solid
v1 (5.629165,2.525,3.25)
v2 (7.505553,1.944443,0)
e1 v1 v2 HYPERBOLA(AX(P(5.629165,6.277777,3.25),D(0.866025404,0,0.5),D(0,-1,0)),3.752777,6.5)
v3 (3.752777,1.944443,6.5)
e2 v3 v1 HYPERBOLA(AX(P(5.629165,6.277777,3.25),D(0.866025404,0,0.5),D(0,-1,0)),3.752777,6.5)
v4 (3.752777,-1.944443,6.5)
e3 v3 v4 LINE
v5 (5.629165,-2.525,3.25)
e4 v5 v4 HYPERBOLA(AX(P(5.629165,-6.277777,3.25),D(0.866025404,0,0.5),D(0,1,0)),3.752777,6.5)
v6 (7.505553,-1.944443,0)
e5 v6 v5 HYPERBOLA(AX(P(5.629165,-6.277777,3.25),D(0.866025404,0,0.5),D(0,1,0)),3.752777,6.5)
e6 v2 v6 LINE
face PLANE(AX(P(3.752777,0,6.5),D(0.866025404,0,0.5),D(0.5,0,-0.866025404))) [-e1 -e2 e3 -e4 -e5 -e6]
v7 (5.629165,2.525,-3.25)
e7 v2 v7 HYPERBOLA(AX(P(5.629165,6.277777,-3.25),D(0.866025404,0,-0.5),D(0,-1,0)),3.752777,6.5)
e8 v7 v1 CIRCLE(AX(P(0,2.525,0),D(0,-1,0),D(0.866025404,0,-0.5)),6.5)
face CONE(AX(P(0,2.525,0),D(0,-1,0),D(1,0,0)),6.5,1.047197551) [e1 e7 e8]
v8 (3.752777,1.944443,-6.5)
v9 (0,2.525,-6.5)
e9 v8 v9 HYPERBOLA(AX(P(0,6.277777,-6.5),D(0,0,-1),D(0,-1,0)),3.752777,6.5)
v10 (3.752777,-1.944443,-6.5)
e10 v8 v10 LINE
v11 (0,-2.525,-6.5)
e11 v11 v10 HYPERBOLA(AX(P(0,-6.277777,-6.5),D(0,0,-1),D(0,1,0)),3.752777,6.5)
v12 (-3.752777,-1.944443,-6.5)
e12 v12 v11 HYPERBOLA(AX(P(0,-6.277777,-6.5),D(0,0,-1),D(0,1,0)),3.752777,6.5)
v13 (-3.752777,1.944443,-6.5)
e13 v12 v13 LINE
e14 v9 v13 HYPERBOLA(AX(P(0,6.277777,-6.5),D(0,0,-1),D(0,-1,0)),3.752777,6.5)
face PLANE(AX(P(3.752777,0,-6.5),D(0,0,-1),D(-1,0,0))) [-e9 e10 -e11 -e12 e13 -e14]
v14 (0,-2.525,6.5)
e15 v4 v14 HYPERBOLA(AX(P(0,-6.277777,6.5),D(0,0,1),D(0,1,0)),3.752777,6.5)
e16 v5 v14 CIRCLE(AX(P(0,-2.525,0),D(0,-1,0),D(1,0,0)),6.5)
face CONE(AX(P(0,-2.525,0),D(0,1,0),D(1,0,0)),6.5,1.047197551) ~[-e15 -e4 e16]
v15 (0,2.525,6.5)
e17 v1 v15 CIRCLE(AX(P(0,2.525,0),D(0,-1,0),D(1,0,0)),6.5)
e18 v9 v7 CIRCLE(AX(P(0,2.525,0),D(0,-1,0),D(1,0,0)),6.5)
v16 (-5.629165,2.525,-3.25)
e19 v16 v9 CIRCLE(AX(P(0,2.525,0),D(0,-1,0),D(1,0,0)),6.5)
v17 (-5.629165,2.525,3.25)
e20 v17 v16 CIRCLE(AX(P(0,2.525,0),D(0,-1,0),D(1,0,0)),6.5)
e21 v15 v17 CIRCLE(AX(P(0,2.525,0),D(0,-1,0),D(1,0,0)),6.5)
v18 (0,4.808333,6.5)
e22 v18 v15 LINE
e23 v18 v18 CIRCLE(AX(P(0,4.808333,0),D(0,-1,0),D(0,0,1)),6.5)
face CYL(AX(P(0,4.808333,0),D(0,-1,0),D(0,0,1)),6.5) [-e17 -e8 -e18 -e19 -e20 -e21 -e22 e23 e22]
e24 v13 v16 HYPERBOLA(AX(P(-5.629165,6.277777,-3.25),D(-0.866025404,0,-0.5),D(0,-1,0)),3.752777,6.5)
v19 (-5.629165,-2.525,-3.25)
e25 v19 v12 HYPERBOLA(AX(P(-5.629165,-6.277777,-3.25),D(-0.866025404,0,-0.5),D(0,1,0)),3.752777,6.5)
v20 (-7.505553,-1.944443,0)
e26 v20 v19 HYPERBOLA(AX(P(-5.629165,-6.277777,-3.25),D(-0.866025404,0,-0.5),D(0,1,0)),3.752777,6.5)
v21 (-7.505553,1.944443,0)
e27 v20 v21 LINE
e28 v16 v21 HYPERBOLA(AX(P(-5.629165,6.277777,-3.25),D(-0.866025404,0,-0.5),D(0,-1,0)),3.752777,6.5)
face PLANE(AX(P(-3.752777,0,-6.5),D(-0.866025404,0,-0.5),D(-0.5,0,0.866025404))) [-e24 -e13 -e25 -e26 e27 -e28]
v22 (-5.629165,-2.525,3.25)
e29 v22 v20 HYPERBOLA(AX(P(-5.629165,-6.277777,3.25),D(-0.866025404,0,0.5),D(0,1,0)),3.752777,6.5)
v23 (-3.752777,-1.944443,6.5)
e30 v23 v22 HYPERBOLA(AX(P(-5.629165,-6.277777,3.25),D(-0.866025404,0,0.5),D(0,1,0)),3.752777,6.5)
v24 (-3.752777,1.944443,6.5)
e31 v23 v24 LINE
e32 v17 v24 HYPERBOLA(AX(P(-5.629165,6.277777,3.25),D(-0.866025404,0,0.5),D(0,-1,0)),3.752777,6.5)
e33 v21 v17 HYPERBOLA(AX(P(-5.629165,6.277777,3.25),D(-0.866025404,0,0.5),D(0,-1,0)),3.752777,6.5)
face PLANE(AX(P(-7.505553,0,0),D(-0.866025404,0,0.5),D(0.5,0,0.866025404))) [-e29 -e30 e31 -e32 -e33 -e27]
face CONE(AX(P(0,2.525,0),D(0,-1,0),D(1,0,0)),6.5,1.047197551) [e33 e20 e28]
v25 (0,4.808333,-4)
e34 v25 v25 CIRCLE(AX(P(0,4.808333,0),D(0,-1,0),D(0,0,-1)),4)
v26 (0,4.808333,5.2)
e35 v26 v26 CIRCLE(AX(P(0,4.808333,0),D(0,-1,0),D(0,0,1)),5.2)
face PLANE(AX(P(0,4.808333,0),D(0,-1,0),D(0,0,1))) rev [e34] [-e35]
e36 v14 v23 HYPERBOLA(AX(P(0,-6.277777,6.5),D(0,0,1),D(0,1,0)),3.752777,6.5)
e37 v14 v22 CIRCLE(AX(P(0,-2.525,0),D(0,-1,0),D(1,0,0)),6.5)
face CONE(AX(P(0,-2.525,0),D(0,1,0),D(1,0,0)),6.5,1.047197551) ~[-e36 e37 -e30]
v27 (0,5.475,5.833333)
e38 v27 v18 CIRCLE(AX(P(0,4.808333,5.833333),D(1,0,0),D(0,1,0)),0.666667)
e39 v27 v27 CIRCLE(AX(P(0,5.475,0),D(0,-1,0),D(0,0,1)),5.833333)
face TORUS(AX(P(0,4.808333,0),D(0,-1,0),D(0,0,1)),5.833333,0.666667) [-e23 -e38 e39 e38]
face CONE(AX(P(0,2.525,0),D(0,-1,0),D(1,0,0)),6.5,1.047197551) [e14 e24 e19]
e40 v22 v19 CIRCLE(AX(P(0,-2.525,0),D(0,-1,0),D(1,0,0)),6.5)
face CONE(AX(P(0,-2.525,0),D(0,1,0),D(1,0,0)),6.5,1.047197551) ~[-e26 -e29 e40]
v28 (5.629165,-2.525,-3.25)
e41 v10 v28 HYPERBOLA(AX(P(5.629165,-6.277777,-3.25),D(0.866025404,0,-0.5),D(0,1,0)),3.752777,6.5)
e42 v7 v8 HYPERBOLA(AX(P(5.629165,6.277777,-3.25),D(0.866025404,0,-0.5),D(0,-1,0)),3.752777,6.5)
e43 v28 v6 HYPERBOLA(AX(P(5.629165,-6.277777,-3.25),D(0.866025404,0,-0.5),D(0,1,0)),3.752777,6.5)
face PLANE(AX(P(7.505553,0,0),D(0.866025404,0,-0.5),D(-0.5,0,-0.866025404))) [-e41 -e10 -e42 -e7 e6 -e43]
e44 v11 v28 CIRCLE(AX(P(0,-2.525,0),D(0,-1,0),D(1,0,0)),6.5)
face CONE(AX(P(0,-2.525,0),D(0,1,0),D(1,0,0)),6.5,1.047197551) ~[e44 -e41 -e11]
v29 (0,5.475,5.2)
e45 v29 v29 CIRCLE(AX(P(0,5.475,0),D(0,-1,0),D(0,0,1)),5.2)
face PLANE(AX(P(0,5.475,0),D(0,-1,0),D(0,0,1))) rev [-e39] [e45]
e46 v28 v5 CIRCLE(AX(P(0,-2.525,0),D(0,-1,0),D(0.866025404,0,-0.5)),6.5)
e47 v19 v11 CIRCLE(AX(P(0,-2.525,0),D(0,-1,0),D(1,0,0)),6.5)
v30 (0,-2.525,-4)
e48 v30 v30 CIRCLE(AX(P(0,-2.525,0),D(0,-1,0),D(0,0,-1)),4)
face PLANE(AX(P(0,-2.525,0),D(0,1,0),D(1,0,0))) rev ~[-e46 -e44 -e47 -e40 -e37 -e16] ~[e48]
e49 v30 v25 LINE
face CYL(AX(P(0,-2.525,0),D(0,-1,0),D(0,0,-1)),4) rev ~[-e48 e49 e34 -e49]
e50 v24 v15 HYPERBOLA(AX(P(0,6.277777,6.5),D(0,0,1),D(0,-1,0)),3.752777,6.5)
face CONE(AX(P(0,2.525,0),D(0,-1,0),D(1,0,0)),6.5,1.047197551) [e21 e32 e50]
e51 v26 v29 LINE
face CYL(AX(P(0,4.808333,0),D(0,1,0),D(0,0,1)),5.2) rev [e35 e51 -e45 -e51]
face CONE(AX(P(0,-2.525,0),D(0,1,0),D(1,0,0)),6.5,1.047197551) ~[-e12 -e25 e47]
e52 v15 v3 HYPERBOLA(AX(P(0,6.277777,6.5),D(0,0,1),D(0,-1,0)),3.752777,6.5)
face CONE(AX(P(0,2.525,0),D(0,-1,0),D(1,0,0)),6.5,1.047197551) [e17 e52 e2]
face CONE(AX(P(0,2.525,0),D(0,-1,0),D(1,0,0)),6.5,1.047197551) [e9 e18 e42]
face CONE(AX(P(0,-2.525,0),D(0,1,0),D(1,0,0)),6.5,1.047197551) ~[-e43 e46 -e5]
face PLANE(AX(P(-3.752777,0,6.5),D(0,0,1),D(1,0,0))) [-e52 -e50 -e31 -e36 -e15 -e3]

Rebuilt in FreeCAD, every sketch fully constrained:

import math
import FreeCAD as App
import Part
import Sketcher

V = App.Vector
Q = App.Units.Quantity

doc = App.newDocument("Part")
body = doc.addObject("PartDesign::Body", "Body")

# Sketch on XZ plane
sketch1 = doc.addObject("Sketcher::SketchObject", "Sketch")
body.addObject(sketch1)
sketch1.AttachmentSupport = (doc.XZ_Plane, [""])
sketch1.MapMode = "FlatFace"
sketch1.addGeometry(Part.LineSegment(V(4, -6, 0), V(-4, -6, 0)), False)
sketch1.addGeometry(Part.LineSegment(V(-4, -6, 0), V(-8, 0, 0)), False)
sketch1.addGeometry(Part.LineSegment(V(-8, 0, 0), V(-4, 6, 0)), False)
sketch1.addGeometry(Part.LineSegment(V(-4, 6, 0), V(4, 6, 0)), False)
sketch1.addGeometry(Part.LineSegment(V(4, 6, 0), V(8, 0, 0)), False)
sketch1.addGeometry(Part.LineSegment(V(8, 0, 0), V(4, -6, 0)), False)
sketch1.addConstraint(Sketcher.Constraint("Coincident", 0, 2, 1, 1))
sketch1.addConstraint(Sketcher.Constraint("Coincident", 1, 2, 2, 1))
sketch1.addConstraint(Sketcher.Constraint("Coincident", 2, 2, 3, 1))
sketch1.addConstraint(Sketcher.Constraint("Coincident", 3, 2, 4, 1))
sketch1.addConstraint(Sketcher.Constraint("Coincident", 4, 2, 5, 1))
sketch1.addConstraint(Sketcher.Constraint("Coincident", 5, 2, 0, 1))
sketch1.addConstraint(Sketcher.Constraint("Horizontal", 0))
sketch1.addConstraint(Sketcher.Constraint("Horizontal", 3))
sketch1.addConstraint(Sketcher.Constraint("Symmetric", 0, 2, 3, 2, -1, 1))
sketch1.addConstraint(Sketcher.Constraint("Symmetric", 1, 2, 4, 2, -1, 1))
sketch1.addConstraint(Sketcher.Constraint("PointOnObject", 1, 2, -1))
sketch1.addConstraint(Sketcher.Constraint("Parallel", 2, 5))
sketch1.addConstraint(Sketcher.Constraint("Vertical", 0, 2, 2, 2))
sketch1.addConstraint(Sketcher.Constraint("Angle", 1, Q("120 deg")))
sketch1.addConstraint(Sketcher.Constraint("DistanceY", 0, 2, 2, 2, Q("13 mm")))
sketch1.addConstraint(Sketcher.Constraint("DistanceX", 0, 2, 0, 1, Q("7.505554 mm")))
pad1 = doc.addObject("PartDesign::Pad", "Pad")
body.addObject(pad1)
pad1.Profile = sketch1
pad1.Length = 5.05
pad1.Midplane = True

# Sketch on XY plane
sketch2 = doc.addObject("Sketcher::SketchObject", "Sketch001")
body.addObject(sketch2)
sketch2.AttachmentSupport = (doc.XY_Plane, [""])
sketch2.MapMode = "FlatFace"
sketch2.addGeometry(Part.LineSegment(V(7.5, 2.5, 0), V(6.5, 2.5, 0)), False)
sketch2.addGeometry(Part.LineSegment(V(6.5, 2.5, 0), V(7.5, 1.9, 0)), False)
sketch2.addGeometry(Part.LineSegment(V(7.5, 1.9, 0), V(7.5, 2.5, 0)), False)
sketch2.addConstraint(Sketcher.Constraint("Coincident", 0, 2, 1, 1))
sketch2.addConstraint(Sketcher.Constraint("Coincident", 1, 2, 2, 1))
sketch2.addConstraint(Sketcher.Constraint("Coincident", 2, 2, 0, 1))
sketch2.addConstraint(Sketcher.Constraint("Horizontal", 0))
sketch2.addConstraint(Sketcher.Constraint("Vertical", 2))
sketch2.addConstraint(Sketcher.Constraint("Angle", 1, Q("-30 deg")))
sketch2.addConstraint(Sketcher.Constraint("DistanceX", -1, 1, 0, 2, Q("6.5 mm")))
sketch2.addConstraint(Sketcher.Constraint("DistanceY", -1, 1, 0, 2, Q("2.525 mm")))
sketch2.addConstraint(Sketcher.Constraint("DistanceX", 0, 2, 0, 1, Q("1.005553 mm")))
groove = doc.addObject("PartDesign::Groove", "Groove")
body.addObject(groove)
groove.Profile = sketch2
groove.ReferenceAxis = (sketch2, ["V_Axis"])
groove.Angle = 360
doc.recompute()

mirrored = doc.addObject("PartDesign::Mirrored", "Mirrored")
body.addObject(mirrored)
mirrored.Originals = [groove]
mirrored.MirrorPlane = (doc.XZ_Plane, [""])
body.Tip = mirrored

# Sketch on XY plane
sketch3 = doc.addObject("Sketcher::SketchObject", "Sketch002")
body.addObject(sketch3)
sketch3.AttachmentSupport = (doc.XY_Plane, [""])
sketch3.MapMode = "FlatFace"
sketch3.addGeometry(Part.LineSegment(V(0, 4.8, 0), V(0, 2.5, 0)), False)
sketch3.addGeometry(Part.LineSegment(V(0, 2.5, 0), V(6.5, 2.5, 0)), False)
sketch3.addGeometry(Part.LineSegment(V(6.5, 2.5, 0), V(6.5, 4.8, 0)), False)
sketch3.addGeometry(Part.ArcOfCircle(Part.Circle(V(5.8, 4.8, 0), V(0, 0, 1), 0.7), math.radians(0), math.radians(90)), False)
sketch3.addGeometry(Part.LineSegment(V(5.8, 5.5, 0), V(5.2, 5.5, 0)), False)
sketch3.addGeometry(Part.LineSegment(V(5.2, 5.5, 0), V(5.2, 4.8, 0)), False)
sketch3.addGeometry(Part.LineSegment(V(5.2, 4.8, 0), V(0, 4.8, 0)), False)
sketch3.addConstraint(Sketcher.Constraint("Coincident", 0, 2, 1, 1))
sketch3.addConstraint(Sketcher.Constraint("Coincident", 1, 2, 2, 1))
sketch3.addConstraint(Sketcher.Constraint("Tangent", 2, 2, 3, 1))
sketch3.addConstraint(Sketcher.Constraint("Tangent", 3, 2, 4, 1))
sketch3.addConstraint(Sketcher.Constraint("Coincident", 4, 2, 5, 1))
sketch3.addConstraint(Sketcher.Constraint("Coincident", 5, 2, 6, 1))
sketch3.addConstraint(Sketcher.Constraint("Coincident", 6, 2, 0, 1))
sketch3.addConstraint(Sketcher.Constraint("Vertical", 0))
sketch3.addConstraint(Sketcher.Constraint("Horizontal", 1))
sketch3.addConstraint(Sketcher.Constraint("Vertical", 2))
sketch3.addConstraint(Sketcher.Constraint("Horizontal", 4))
sketch3.addConstraint(Sketcher.Constraint("Vertical", 5))
sketch3.addConstraint(Sketcher.Constraint("Horizontal", 6))
sketch3.addConstraint(Sketcher.Constraint("PointOnObject", 0, 2, -2))
sketch3.addConstraint(Sketcher.Constraint("Horizontal", 2, 2, 5, 2))
sketch3.addConstraint(Sketcher.Constraint("DistanceX", 1, 1, 1, 2, Q("6.5 mm")))
sketch3.addConstraint(Sketcher.Constraint("DistanceX", 6, 2, 6, 1, Q("5.2 mm")))
sketch3.addConstraint(Sketcher.Constraint("DistanceY", 1, 2, 3, 2, Q("2.95 mm")))
sketch3.addConstraint(Sketcher.Constraint("DistanceY", -1, 1, 0, 2, Q("2.525 mm")))
sketch3.addConstraint(Sketcher.Constraint("Radius", 3, Q("0.666667 mm")))
revolution = doc.addObject("PartDesign::Revolution", "Revolution")
body.addObject(revolution)
revolution.Profile = sketch3
revolution.ReferenceAxis = (sketch3, ["V_Axis"])
revolution.Angle = 360

# Sketch on XZ plane
sketch4 = doc.addObject("Sketcher::SketchObject", "Sketch003")
body.addObject(sketch4)
sketch4.AttachmentSupport = (doc.XZ_Plane, [""])
sketch4.MapMode = "FlatFace"
sketch4.AttachmentOffset = App.Placement(V(0, 0, 2.525), App.Rotation())
sketch4.addGeometry(Part.Circle(V(0, 0, 0), V(0, 0, 1), 4), False)
sketch4.addConstraint(Sketcher.Constraint("Coincident", 0, 3, -1, 1))
sketch4.addConstraint(Sketcher.Constraint("Diameter", 0, Q("8 mm")))
pocket1 = doc.addObject("PartDesign::Pocket", "Pocket")
body.addObject(pocket1)
pocket1.Profile = sketch4
pocket1.Type = "UpToFirst"

doc.recompute()
